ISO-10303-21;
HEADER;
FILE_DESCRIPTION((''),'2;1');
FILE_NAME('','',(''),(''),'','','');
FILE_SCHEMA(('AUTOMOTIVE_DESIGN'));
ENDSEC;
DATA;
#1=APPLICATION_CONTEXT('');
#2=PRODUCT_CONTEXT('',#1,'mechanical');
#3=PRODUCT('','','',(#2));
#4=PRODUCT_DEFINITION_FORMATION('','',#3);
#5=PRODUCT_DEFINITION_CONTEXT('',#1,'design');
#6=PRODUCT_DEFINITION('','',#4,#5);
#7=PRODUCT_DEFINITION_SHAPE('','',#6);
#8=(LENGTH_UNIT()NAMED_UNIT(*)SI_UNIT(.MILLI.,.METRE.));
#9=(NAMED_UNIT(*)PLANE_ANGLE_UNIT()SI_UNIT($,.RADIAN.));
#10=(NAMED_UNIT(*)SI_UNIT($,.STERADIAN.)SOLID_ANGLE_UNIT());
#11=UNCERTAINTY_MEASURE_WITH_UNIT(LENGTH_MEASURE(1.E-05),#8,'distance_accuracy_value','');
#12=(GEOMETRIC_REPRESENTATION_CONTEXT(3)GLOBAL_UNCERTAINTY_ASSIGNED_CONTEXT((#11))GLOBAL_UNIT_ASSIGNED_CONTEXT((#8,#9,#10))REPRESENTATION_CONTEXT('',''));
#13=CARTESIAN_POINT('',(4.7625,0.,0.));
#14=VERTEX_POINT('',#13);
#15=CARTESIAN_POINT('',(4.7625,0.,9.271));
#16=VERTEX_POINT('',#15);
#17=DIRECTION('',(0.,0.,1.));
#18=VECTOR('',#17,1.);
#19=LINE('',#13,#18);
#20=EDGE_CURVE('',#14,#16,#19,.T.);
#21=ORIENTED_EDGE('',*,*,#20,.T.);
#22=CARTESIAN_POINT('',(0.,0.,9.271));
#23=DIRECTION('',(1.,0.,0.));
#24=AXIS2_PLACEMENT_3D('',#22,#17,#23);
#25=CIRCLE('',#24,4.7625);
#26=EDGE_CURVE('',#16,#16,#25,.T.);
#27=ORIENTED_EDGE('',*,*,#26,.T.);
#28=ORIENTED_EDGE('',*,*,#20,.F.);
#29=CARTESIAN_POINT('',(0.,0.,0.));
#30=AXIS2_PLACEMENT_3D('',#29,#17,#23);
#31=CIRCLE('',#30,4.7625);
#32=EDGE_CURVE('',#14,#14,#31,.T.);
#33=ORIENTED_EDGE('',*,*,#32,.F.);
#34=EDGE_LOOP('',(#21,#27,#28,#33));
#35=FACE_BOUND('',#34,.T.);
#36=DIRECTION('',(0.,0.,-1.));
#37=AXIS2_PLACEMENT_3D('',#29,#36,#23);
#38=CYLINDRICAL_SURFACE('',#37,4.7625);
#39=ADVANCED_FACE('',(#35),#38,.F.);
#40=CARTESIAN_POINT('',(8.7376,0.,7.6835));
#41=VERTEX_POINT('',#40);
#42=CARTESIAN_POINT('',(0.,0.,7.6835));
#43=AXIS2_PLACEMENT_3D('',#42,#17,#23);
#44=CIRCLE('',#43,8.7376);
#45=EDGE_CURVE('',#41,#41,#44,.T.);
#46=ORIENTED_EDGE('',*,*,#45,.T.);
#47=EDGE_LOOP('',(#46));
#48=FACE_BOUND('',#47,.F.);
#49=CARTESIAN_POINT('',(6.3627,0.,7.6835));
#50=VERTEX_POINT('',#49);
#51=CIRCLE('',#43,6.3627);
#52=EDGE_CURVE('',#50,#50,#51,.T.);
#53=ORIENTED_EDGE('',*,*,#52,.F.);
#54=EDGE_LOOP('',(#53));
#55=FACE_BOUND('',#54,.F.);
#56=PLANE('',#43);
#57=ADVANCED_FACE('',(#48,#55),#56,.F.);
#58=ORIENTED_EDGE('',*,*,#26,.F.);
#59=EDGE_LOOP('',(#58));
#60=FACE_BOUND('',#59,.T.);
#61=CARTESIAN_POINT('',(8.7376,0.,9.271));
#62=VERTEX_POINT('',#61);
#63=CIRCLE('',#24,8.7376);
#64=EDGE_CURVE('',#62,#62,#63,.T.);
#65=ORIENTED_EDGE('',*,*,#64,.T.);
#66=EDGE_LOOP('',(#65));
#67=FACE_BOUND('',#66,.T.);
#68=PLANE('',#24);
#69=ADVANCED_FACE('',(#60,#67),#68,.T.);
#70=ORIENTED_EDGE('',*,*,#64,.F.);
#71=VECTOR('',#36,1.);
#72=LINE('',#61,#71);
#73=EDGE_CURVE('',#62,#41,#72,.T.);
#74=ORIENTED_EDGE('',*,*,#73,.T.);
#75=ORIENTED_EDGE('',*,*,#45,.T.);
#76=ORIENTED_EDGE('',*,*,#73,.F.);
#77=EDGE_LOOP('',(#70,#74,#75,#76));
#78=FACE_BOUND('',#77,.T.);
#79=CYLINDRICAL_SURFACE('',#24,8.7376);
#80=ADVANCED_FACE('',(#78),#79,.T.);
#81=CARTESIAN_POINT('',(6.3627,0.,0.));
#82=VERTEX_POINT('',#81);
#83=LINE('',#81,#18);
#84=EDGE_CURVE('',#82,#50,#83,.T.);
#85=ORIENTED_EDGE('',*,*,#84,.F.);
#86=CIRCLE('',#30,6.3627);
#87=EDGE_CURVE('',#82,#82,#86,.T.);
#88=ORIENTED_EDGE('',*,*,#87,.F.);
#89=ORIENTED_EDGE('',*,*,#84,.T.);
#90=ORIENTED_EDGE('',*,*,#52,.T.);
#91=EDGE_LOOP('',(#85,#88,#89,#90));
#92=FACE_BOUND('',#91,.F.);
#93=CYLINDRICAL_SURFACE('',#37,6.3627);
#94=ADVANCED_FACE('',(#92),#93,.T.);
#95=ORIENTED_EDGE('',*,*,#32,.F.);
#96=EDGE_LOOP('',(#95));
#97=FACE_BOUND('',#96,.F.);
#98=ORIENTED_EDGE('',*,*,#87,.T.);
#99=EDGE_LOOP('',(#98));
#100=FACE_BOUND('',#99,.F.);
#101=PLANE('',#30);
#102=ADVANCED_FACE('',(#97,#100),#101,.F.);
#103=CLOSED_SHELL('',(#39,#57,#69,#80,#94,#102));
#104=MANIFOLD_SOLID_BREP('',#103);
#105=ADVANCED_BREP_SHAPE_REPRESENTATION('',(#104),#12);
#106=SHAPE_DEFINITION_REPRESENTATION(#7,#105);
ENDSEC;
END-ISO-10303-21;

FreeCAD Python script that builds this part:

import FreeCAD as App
import Part
import Sketcher
Q = App.Units.Quantity

doc = App.newDocument("Part")
body = doc.addObject("PartDesign::Body", "Body")

# Sketch on XY plane
sketch1 = body.newObject("Sketcher::SketchObject", "Sketch")
sketch1.AttachmentSupport = (doc.getObject("XY_Plane"), [""])
sketch1.MapMode = "FlatFace"
sketch1.addGeometry([
    Part.Circle(App.Vector(0, 0, 0), App.Vector(0, 0, 1), 6.4),
    Part.Circle(App.Vector(0, 0, 0), App.Vector(0, 0, 1), 4.8),
], False)
sketch1.addConstraint([
    Sketcher.Constraint("Coincident", 0, 3, -1, 1),
    Sketcher.Constraint("Coincident", 1, 3, -1, 1),
    Sketcher.Constraint("Diameter", 0, Q("0.501 in")),
    Sketcher.Constraint("Diameter", 1, Q("0.375 in")),
])
pad1 = body.newObject("PartDesign::Pad", "Pad")
pad1.Profile = sketch1
pad1.Length = Q("0.365 in")

# Sketch on XY plane
sketch2 = body.newObject("Sketcher::SketchObject", "Sketch001")
sketch2.AttachmentSupport = (doc.getObject("XY_Plane"), [""])
sketch2.MapMode = "FlatFace"
sketch2.AttachmentOffset = App.Placement(App.Vector(0, 0, 0.365 * 25.4), App.Rotation())
sketch2.addGeometry([
    Part.Circle(App.Vector(0, 0, 0), App.Vector(0, 0, 1), 9),
    Part.Circle(App.Vector(0, 0, 0), App.Vector(0, 0, 1), 6),
], False)
sketch2.addConstraint([
    Sketcher.Constraint("Coincident", 0, 3, -1, 1),
    Sketcher.Constraint("Coincident", 1, 3, -1, 1),
    Sketcher.Constraint("Diameter", 0, Q("0.688 in")),
    Sketcher.Constraint("Diameter", 1, Q("0.501 in")),
])
pad2 = body.newObject("PartDesign::Pad", "Pad001")
pad2.Profile = sketch2
pad2.Length = Q("0.0625 in")
pad2.Reversed = True

doc.recompute()
